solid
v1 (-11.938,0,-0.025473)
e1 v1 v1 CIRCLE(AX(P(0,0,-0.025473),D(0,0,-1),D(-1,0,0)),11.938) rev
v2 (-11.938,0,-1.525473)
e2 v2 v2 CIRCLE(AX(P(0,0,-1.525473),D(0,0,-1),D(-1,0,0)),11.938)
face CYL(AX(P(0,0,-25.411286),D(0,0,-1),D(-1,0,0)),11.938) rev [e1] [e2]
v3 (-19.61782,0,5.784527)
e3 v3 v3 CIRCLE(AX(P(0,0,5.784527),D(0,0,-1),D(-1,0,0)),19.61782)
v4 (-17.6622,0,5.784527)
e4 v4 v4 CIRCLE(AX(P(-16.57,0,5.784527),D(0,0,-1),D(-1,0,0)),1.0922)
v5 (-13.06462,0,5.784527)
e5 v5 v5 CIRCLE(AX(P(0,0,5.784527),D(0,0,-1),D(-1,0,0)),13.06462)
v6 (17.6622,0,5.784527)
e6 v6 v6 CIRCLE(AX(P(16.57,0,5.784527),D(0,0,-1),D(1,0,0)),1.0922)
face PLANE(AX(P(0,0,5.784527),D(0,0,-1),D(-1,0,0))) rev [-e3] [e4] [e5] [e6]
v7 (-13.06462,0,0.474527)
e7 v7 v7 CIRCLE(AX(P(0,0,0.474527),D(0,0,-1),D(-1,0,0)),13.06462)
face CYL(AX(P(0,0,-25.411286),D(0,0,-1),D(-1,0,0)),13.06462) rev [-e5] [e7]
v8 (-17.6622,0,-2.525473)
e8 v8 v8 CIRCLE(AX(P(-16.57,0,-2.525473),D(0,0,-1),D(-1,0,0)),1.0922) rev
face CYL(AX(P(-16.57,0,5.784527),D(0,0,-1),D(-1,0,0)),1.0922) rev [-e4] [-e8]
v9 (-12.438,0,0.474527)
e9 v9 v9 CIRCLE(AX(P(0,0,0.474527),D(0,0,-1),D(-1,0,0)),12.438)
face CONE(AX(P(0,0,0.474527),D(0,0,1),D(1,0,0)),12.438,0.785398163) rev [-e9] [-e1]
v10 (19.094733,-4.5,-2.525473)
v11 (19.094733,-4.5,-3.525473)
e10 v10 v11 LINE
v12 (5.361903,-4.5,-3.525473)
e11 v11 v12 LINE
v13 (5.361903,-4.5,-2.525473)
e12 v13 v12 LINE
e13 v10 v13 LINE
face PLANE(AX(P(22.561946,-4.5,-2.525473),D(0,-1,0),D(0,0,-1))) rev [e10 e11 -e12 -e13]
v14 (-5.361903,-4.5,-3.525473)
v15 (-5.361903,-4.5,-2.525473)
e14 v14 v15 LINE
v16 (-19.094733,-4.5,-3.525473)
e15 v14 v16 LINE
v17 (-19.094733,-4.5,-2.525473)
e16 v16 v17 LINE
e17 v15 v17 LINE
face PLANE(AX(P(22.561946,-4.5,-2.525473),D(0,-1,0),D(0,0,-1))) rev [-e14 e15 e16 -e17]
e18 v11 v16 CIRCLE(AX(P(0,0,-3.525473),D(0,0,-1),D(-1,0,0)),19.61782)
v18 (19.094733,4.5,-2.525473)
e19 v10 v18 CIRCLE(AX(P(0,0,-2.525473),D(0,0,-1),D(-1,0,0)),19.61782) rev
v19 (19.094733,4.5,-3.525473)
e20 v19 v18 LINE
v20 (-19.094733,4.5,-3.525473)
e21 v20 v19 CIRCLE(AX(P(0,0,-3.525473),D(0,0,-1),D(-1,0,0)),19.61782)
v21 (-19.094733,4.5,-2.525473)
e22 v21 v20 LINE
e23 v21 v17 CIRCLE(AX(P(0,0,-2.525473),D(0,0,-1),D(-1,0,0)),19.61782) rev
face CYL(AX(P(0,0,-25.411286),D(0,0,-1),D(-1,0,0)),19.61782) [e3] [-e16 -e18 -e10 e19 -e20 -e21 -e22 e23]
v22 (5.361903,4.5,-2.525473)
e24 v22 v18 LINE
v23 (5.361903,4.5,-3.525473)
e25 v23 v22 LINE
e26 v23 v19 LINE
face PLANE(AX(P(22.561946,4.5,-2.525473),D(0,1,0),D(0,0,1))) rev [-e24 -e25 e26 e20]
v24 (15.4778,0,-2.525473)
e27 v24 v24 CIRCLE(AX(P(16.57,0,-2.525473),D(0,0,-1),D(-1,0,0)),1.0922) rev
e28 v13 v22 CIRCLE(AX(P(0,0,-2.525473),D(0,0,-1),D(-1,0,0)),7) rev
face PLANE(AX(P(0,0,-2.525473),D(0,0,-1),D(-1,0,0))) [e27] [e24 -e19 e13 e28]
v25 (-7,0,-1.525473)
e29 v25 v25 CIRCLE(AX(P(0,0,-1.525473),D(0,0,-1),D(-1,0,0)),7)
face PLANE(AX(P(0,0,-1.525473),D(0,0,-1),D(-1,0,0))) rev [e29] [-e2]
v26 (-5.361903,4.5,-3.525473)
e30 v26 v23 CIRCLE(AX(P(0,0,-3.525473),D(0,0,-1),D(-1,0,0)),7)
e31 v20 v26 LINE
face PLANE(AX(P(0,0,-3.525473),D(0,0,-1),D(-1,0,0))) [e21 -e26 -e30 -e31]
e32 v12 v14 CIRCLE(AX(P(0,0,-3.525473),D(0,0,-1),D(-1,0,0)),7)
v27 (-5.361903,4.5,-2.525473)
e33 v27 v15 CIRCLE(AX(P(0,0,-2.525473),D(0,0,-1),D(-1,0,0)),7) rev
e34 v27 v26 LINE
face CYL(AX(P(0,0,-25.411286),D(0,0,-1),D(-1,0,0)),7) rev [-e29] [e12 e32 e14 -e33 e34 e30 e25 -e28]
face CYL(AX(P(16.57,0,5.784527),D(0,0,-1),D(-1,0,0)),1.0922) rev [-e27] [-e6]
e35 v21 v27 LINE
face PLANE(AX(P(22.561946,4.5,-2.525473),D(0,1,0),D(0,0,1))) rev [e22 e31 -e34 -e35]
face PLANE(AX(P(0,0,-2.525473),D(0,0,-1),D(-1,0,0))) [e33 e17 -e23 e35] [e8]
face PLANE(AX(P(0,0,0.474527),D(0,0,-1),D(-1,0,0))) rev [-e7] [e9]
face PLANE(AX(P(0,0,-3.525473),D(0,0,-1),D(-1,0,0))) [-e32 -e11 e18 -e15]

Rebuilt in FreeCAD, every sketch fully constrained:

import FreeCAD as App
import Part
import Sketcher


def edges_at(feature, points):
    """Names of the edges that pass closest to the given points."""
    edges = feature.Shape.Edges
    near = lambda p: min(range(len(edges)), key=lambda i: edges[i].distToShape(Part.Vertex(*p))[0])
    return sorted({f"Edge{near(p) + 1}" for p in points})

doc = App.newDocument("Part")
body = doc.addObject("PartDesign::Body", "Body")

# Sketch on XZ plane
sketch1 = doc.addObject("Sketcher::SketchObject", "Sketch")
body.addObject(sketch1)
sketch1.AttachmentSupport = (doc.XZ_Plane, [""])
sketch1.MapMode = "FlatFace"
sketch1.addGeometry([
    Part.LineSegment(App.Vector(-19.6, -3.5, 0), App.Vector(-19.6, 5.8, 0)),  # 0
    Part.LineSegment(App.Vector(-19.6, 5.8, 0), App.Vector(-13.1, 5.8, 0)),  # 1
    Part.LineSegment(App.Vector(-13.1, 5.8, 0), App.Vector(-13.1, 0.5, 0)),  # 2
    Part.LineSegment(App.Vector(-13.1, 0.5, 0), App.Vector(-11.9, 0.5, 0)),  # 3
    Part.LineSegment(App.Vector(-11.9, 0.5, 0), App.Vector(-11.9, -1.5, 0)),  # 4
    Part.LineSegment(App.Vector(-11.9, -1.5, 0), App.Vector(-7, -1.5, 0)),  # 5
    Part.LineSegment(App.Vector(-7, -1.5, 0), App.Vector(-7, -3.5, 0)),  # 6
    Part.LineSegment(App.Vector(-7, -3.5, 0), App.Vector(-19.6, -3.5, 0)),  # 7
], False)
sketch1.addConstraint([
    Sketcher.Constraint("Coincident", 0, 2, 1, 1),
    Sketcher.Constraint("Coincident", 1, 2, 2, 1),
    Sketcher.Constraint("Coincident", 2, 2, 3, 1),
    Sketcher.Constraint("Coincident", 3, 2, 4, 1),
    Sketcher.Constraint("Coincident", 4, 2, 5, 1),
    Sketcher.Constraint("Coincident", 5, 2, 6, 1),
    Sketcher.Constraint("Coincident", 6, 2, 7, 1),
    Sketcher.Constraint("Coincident", 7, 2, 0, 1),
    Sketcher.Constraint("Vertical", 0),
    Sketcher.Constraint("Horizontal", 1),
    Sketcher.Constraint("Vertical", 2),
    Sketcher.Constraint("Horizontal", 3),
    Sketcher.Constraint("Vertical", 4),
    Sketcher.Constraint("Horizontal", 5),
    Sketcher.Constraint("Vertical", 6),
    Sketcher.Constraint("Horizontal", 7),
    Sketcher.Constraint("Equal", 4, 6),
    Sketcher.Constraint("DistanceY", 4, 2, 4, 1, 2.0),
    Sketcher.Constraint("DistanceX", 5, 2, -1, 1, 7.0),
    Sketcher.Constraint("DistanceY", 0, 1, 0, 2, 9.31),
    Sketcher.Constraint("DistanceX", 5, 1, 5, 2, 4.938),
    Sketcher.Constraint("DistanceX", 1, 1, 1, 2, 6.5532),
    Sketcher.Constraint("DistanceX", 3, 1, 3, 2, 1.12662),
    Sketcher.Constraint("DistanceY", -1, 1, 0, 2, 5.784527),
])
revolution = doc.addObject("PartDesign::Revolution", "Revolution")
body.addObject(revolution)
revolution.Profile = sketch1
revolution.ReferenceAxis = (sketch1, ["V_Axis"])
revolution.Angle = 360

# Sketch on XY plane
sketch2 = doc.addObject("Sketcher::SketchObject", "Sketch001")
body.addObject(sketch2)
sketch2.AttachmentSupport = (doc.XY_Plane, [""])
sketch2.MapMode = "FlatFace"
sketch2.AttachmentOffset = App.Placement(App.Vector(0, 0, -3.525473), App.Rotation())
sketch2.addGeometry([
    Part.Circle(App.Vector(-16.6, 0, 0), App.Vector(0, 0, 1), 1.1),
    Part.Circle(App.Vector(16.6, 0, 0), App.Vector(0, 0, 1), 1.1),
], False)
sketch2.addConstraint([
    Sketcher.Constraint("Equal", 0, 1),
    Sketcher.Constraint("Symmetric", 0, 3, 1, 3, -1, 1),
    Sketcher.Constraint("PointOnObject", 0, 3, -1),
    Sketcher.Constraint("Diameter", 0, 2.1844),
    Sketcher.Constraint("DistanceX", 0, 3, -1, 1, 16.57),
])
pocket1 = doc.addObject("PartDesign::Pocket", "Pocket")
body.addObject(pocket1)
pocket1.Profile = sketch2
pocket1.Type = "ThroughAll"
pocket1.Reversed = True

# Sketch on XY plane
sketch3 = doc.addObject("Sketcher::SketchObject", "Sketch002")
body.addObject(sketch3)
sketch3.AttachmentSupport = (doc.XY_Plane, [""])
sketch3.MapMode = "FlatFace"
sketch3.AttachmentOffset = App.Placement(App.Vector(0, 0, -3.525473), App.Rotation())
sketch3.addGeometry([
    Part.LineSegment(App.Vector(23, 4, 0), App.Vector(23, -4, 0)),
    Part.LineSegment(App.Vector(23, -4, 0), App.Vector(-23, -4, 0)),
    Part.LineSegment(App.Vector(-23, -4, 0), App.Vector(-23, 4, 0)),
    Part.LineSegment(App.Vector(-23, 4, 0), App.Vector(23, 4, 0)),
], False)
sketch3.addConstraint([
    Sketcher.Constraint("Coincident", 0, 2, 1, 1),
    Sketcher.Constraint("Coincident", 1, 2, 2, 1),
    Sketcher.Constraint("Coincident", 2, 2, 3, 1),
    Sketcher.Constraint("Coincident", 3, 2, 0, 1),
    Sketcher.Constraint("Vertical", 0),
    Sketcher.Constraint("Horizontal", 1),
    Sketcher.Constraint("Vertical", 2),
    Sketcher.Constraint("Horizontal", 3),
    Sketcher.Constraint("Symmetric", 0, 2, 2, 2, -1, 1),
    Sketcher.Constraint("DistanceY", 0, 2, 0, 1, 9.0),
    Sketcher.Constraint("DistanceX", 1, 2, 1, 1, 45.123893),
])
pocket2 = doc.addObject("PartDesign::Pocket", "Pocket001")
body.addObject(pocket2)
pocket2.Profile = sketch3
pocket2.Length = 1
pocket2.Reversed = True
doc.recompute()

chamfer = doc.addObject("PartDesign::Chamfer", "Chamfer")
body.addObject(chamfer)
chamfer.Base = (pocket2, edges_at(pocket2, [(11.938, 0, 0.475)]))
chamfer.Size = 0.5

doc.recompute()
